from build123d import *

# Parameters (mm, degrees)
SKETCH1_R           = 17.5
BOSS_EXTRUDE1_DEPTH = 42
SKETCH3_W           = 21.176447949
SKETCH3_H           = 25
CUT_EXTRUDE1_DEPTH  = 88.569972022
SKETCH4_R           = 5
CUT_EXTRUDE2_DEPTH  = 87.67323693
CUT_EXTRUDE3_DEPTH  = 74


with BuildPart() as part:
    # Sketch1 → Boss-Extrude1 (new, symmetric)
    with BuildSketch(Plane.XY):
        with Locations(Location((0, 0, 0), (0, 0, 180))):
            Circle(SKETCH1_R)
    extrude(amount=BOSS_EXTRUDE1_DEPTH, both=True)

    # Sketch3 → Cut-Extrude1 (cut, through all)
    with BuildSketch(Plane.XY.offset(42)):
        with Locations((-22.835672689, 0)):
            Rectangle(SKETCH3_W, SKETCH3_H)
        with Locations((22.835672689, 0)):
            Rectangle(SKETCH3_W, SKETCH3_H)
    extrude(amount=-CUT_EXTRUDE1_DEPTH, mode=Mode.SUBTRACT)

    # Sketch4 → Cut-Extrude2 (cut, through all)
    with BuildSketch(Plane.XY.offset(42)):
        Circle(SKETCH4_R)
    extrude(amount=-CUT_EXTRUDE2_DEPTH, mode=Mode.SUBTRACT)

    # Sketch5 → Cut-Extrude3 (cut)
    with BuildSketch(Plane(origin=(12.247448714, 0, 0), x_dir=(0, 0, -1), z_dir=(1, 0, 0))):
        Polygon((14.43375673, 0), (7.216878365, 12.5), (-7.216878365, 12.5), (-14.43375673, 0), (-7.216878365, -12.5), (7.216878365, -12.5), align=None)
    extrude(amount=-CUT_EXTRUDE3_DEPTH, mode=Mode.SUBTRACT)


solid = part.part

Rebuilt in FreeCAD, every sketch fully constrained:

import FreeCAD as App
import Part
import Sketcher
Q = App.Units.Quantity

doc = App.newDocument("Part")
body = doc.addObject("PartDesign::Body", "Body")

sketch1 = body.newObject("Sketcher::SketchObject", "Sketch")
sketch1.AttachmentSupport = (doc.getObject("XY_Plane"), [""])
sketch1.MapMode = "FlatFace"
sketch1.addGeometry(Part.Circle(App.Vector(0, 0, 0), App.Vector(0, 0, 1), 18), False)
sketch1.addConstraint([
    Sketcher.Constraint("Coincident", 0, 3, -1, 1),
    Sketcher.Constraint("Diameter", 0, 35.0),
])
pad1 = body.newObject("PartDesign::Pad", "Pad")
pad1.Profile = sketch1
pad1.Length = 84
pad1.Midplane = True

sketch2 = body.newObject("Sketcher::SketchObject", "Sketch001")
sketch2.AttachmentSupport = (doc.getObject("XY_Plane"), [""])
sketch2.MapMode = "FlatFace"
sketch2.AttachmentOffset = App.Placement(App.Vector(0, 0, 42), App.Rotation())
sketch2.addGeometry([
    Part.LineSegment(App.Vector(-33, 12, 0), App.Vector(-33, -12, 0)),
    Part.LineSegment(App.Vector(-33, -12, 0), App.Vector(-12, -12, 0)),
    Part.LineSegment(App.Vector(-12, -12, 0), App.Vector(-12, 12, 0)),
    Part.LineSegment(App.Vector(-12, 12, 0), App.Vector(-33, 12, 0)),
    Part.LineSegment(App.Vector(12, 12, 0), App.Vector(12, -12, 0)),
    Part.LineSegment(App.Vector(12, -12, 0), App.Vector(33, -12, 0)),
    Part.LineSegment(App.Vector(33, -12, 0), App.Vector(33, 12, 0)),
    Part.LineSegment(App.Vector(33, 12, 0), App.Vector(12, 12, 0)),
], False)
sketch2.addConstraint([
    Sketcher.Constraint("Coincident", 0, 2, 1, 1),
    Sketcher.Constraint("Coincident", 1, 2, 2, 1),
    Sketcher.Constraint("Coincident", 2, 2, 3, 1),
    Sketcher.Constraint("Coincident", 3, 2, 0, 1),
    Sketcher.Constraint("Coincident", 4, 2, 5, 1),
    Sketcher.Constraint("Coincident", 5, 2, 6, 1),
    Sketcher.Constraint("Coincident", 6, 2, 7, 1),
    Sketcher.Constraint("Coincident", 7, 2, 4, 1),
    Sketcher.Constraint("Vertical", 0),
    Sketcher.Constraint("Horizontal", 1),
    Sketcher.Constraint("Vertical", 2),
    Sketcher.Constraint("Horizontal", 3),
    Sketcher.Constraint("Vertical", 4),
    Sketcher.Constraint("Horizontal", 5),
    Sketcher.Constraint("Vertical", 6),
    Sketcher.Constraint("Horizontal", 7),
    Sketcher.Constraint("Symmetric", 2, 2, 4, 2, -1, 1),
    Sketcher.Constraint("Symmetric", 0, 2, 6, 2, -1, 1),
    Sketcher.Constraint("Horizontal", 1, 2, 4, 2),
    Sketcher.Constraint("DistanceY", 0, 2, 0, 1, 25.0),
    Sketcher.Constraint("DistanceX", 1, 1, 1, 2, 21.176448),
    Sketcher.Constraint("DistanceX", 1, 2, -1, 1, 12.247449),
])
pocket1 = body.newObject("PartDesign::Pocket", "Pocket")
pocket1.Profile = sketch2
pocket1.Type = "ThroughAll"

sketch3 = body.newObject("Sketcher::SketchObject", "Sketch002")
sketch3.AttachmentSupport = (doc.getObject("XY_Plane"), [""])
sketch3.MapMode = "FlatFace"
sketch3.AttachmentOffset = App.Placement(App.Vector(0, 0, 42), App.Rotation())
sketch3.addGeometry(Part.Circle(App.Vector(0, 0, 0), App.Vector(0, 0, 1), 5), False)
sketch3.addConstraint([
    Sketcher.Constraint("Coincident", 0, 3, -1, 1),
    Sketcher.Constraint("Diameter", 0, 10.0),
])
pocket2 = body.newObject("PartDesign::Pocket", "Pocket001")
pocket2.Profile = sketch3
pocket2.Type = "ThroughAll"

sketch4 = body.newObject("Sketcher::SketchObject", "Sketch003")
sketch4.AttachmentSupport = (doc.getObject("YZ_Plane"), [""])
sketch4.MapMode = "FlatFace"
sketch4.AttachmentOffset = App.Placement(App.Vector(0, 0, 12.247449), App.Rotation())
sketch4.addGeometry([
    Part.LineSegment(App.Vector(0, -14, 0), App.Vector(12, -7, 0)),
    Part.LineSegment(App.Vector(12, -7, 0), App.Vector(12, 7, 0)),
    Part.LineSegment(App.Vector(12, 7, 0), App.Vector(0, 14, 0)),
    Part.LineSegment(App.Vector(0, 14, 0), App.Vector(-12, 7, 0)),
    Part.LineSegment(App.Vector(-12, 7, 0), App.Vector(-12, -7, 0)),
    Part.LineSegment(App.Vector(-12, -7, 0), App.Vector(0, -14, 0)),
], False)
sketch4.addConstraint([
    Sketcher.Constraint("Coincident", 0, 2, 1, 1),
    Sketcher.Constraint("Coincident", 1, 2, 2, 1),
    Sketcher.Constraint("Coincident", 2, 2, 3, 1),
    Sketcher.Constraint("Coincident", 3, 2, 4, 1),
    Sketcher.Constraint("Coincident", 4, 2, 5, 1),
    Sketcher.Constraint("Coincident", 5, 2, 0, 1),
    Sketcher.Constraint("Vertical", 1),
    Sketcher.Constraint("Vertical", 4),
    Sketcher.Constraint("Symmetric", 0, 2, 3, 2, -1, 1),
    Sketcher.Constraint("Symmetric", 2, 2, 5, 2, -1, 1),
    Sketcher.Constraint("PointOnObject", 2, 2, -2),
    Sketcher.Constraint("Parallel", 2, 5),
    Sketcher.Constraint("Horizontal", 1, 2, 3, 2),
    Sketcher.Constraint("Angle", 0, Q("30 deg")),
    Sketcher.Constraint("DistanceX", 3, 2, 1, 2, 25.0),
    Sketcher.Constraint("DistanceY", 1, 1, 1, 2, 14.433757),
])
pocket3 = body.newObject("PartDesign::Pocket", "Pocket002")
pocket3.Profile = sketch4
pocket3.Length = 74

doc.recompute()
